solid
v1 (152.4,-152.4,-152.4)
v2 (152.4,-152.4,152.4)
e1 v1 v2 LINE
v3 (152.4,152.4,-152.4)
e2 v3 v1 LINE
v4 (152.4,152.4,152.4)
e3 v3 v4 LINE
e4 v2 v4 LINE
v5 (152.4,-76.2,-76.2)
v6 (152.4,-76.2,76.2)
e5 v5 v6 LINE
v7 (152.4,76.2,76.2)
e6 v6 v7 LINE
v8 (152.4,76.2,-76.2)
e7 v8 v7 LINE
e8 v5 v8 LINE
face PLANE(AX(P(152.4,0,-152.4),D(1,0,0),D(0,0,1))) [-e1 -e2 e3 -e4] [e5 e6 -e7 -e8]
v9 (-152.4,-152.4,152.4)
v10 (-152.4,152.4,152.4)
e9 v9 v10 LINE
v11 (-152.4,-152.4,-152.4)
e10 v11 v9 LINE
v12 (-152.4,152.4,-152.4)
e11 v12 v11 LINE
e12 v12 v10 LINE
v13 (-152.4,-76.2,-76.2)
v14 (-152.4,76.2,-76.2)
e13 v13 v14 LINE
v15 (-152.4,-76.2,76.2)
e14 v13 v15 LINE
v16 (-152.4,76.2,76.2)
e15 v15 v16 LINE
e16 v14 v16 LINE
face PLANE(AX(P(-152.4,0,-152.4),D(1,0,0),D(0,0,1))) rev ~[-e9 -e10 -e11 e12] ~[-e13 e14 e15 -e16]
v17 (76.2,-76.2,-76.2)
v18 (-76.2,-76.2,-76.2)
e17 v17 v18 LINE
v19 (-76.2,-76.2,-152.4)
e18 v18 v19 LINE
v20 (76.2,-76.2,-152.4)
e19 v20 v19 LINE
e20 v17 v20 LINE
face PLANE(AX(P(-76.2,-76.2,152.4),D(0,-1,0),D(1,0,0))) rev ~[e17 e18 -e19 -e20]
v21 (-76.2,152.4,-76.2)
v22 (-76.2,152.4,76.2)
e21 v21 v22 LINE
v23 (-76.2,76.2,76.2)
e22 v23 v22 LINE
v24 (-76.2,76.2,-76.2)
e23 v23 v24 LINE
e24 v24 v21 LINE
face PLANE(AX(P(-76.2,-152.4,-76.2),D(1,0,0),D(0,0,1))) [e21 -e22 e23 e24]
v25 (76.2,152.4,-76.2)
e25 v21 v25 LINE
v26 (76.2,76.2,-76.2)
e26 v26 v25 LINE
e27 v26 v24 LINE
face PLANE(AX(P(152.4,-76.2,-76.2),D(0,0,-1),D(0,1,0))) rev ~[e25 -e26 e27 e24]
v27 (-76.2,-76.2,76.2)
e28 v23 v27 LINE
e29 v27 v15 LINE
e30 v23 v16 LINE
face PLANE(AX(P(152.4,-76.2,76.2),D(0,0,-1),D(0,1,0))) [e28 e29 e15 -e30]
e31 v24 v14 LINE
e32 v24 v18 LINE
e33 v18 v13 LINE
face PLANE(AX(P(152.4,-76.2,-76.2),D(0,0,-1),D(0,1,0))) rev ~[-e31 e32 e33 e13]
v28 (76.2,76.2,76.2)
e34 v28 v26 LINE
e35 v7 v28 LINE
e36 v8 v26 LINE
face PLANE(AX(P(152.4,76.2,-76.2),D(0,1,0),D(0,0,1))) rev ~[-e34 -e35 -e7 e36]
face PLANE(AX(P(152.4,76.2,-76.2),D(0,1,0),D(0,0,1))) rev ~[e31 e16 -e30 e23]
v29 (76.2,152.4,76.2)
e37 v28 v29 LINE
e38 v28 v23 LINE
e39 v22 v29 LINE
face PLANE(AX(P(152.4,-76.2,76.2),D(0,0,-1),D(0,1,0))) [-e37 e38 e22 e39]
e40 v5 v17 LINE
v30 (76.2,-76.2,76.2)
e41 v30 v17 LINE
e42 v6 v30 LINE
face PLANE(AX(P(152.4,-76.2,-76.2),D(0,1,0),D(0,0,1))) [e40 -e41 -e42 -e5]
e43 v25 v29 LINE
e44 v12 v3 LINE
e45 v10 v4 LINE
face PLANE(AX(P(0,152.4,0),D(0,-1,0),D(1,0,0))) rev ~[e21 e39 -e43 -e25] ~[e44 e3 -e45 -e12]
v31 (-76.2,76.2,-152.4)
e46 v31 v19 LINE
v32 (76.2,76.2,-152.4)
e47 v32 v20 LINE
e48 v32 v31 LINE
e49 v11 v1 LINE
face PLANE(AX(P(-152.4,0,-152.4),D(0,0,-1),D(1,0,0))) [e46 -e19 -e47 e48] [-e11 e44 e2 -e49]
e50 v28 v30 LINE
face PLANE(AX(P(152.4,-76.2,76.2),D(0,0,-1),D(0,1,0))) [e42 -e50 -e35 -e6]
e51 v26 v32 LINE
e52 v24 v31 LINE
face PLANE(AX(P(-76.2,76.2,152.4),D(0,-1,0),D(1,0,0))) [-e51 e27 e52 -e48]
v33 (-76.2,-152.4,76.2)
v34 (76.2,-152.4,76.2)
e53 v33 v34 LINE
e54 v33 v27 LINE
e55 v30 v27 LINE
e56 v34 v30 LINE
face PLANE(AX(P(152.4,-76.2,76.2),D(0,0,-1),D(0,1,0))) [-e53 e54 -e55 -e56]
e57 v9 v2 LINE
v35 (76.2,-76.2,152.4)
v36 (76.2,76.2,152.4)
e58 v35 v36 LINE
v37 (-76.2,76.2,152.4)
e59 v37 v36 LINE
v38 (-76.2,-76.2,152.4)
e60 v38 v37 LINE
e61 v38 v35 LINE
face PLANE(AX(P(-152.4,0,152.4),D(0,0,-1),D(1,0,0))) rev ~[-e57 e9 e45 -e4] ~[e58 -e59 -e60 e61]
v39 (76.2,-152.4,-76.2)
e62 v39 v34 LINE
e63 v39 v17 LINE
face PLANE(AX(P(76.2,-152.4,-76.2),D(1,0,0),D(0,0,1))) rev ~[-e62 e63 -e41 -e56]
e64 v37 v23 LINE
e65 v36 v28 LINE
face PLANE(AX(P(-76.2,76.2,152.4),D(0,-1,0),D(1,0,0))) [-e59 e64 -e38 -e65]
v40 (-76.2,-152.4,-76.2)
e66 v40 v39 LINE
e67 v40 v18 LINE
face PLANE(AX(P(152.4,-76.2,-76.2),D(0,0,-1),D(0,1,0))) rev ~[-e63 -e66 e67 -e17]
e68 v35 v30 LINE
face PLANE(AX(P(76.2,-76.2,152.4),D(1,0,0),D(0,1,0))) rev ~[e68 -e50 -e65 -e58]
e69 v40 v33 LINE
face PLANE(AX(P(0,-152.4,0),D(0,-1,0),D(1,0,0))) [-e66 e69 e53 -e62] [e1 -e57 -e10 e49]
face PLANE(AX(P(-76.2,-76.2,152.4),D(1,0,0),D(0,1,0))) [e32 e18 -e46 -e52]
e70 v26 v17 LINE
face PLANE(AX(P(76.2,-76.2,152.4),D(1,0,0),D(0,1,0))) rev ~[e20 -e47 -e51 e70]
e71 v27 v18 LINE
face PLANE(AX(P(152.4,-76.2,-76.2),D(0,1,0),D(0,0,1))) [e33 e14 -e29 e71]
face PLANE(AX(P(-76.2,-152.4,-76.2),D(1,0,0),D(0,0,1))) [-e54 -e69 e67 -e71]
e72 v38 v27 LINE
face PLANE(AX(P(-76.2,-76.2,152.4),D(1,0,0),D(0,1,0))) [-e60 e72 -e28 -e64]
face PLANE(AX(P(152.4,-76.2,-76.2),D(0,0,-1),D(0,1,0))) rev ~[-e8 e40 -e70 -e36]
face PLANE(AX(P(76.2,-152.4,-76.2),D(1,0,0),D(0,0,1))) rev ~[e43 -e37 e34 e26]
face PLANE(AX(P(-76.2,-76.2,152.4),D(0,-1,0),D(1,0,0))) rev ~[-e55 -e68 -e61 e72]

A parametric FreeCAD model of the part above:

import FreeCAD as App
import Part
import Sketcher
Q = App.Units.Quantity

doc = App.newDocument("Part")
body = doc.addObject("PartDesign::Body", "Body")

sketch1 = body.newObject("Sketcher::SketchObject", "Sketch")
sketch1.AttachmentSupport = (doc.getObject("XZ_Plane"), [""])
sketch1.MapMode = "FlatFace"
sketch1.addGeometry([
    Part.LineSegment(App.Vector(-152, 152, 0), App.Vector(-152, -152, 0)),
    Part.LineSegment(App.Vector(-152, -152, 0), App.Vector(152, -152, 0)),
    Part.LineSegment(App.Vector(152, -152, 0), App.Vector(152, 152, 0)),
    Part.LineSegment(App.Vector(152, 152, 0), App.Vector(-152, 152, 0)),
], False)
sketch1.addConstraint([
    Sketcher.Constraint("Coincident", 0, 2, 1, 1),
    Sketcher.Constraint("Coincident", 1, 2, 2, 1),
    Sketcher.Constraint("Coincident", 2, 2, 3, 1),
    Sketcher.Constraint("Coincident", 3, 2, 0, 1),
    Sketcher.Constraint("Vertical", 0),
    Sketcher.Constraint("Horizontal", 1),
    Sketcher.Constraint("Vertical", 2),
    Sketcher.Constraint("Horizontal", 3),
    Sketcher.Constraint("Symmetric", 0, 2, 2, 2, -1, 1),
    Sketcher.Constraint("Equal", 3, 0),
    Sketcher.Constraint("DistanceX", 1, 1, 1, 2, Q("12 in")),
])
pad1 = body.newObject("PartDesign::Pad", "Pad")
pad1.Profile = sketch1
pad1.Length = Q("12 in")
pad1.Midplane = True

sketch2 = body.newObject("Sketcher::SketchObject", "Sketch001")
sketch2.AttachmentSupport = (doc.getObject("YZ_Plane"), [""])
sketch2.MapMode = "FlatFace"
sketch2.AttachmentOffset = App.Placement(App.Vector(0, 0, 6 * 25.4), App.Rotation())
sketch2.addGeometry([
    Part.LineSegment(App.Vector(-76, 76, 0), App.Vector(-76, -76, 0)),
    Part.LineSegment(App.Vector(-76, -76, 0), App.Vector(76, -76, 0)),
    Part.LineSegment(App.Vector(76, -76, 0), App.Vector(76, 76, 0)),
    Part.LineSegment(App.Vector(76, 76, 0), App.Vector(-76, 76, 0)),
], False)
sketch2.addConstraint([
    Sketcher.Constraint("Coincident", 0, 2, 1, 1),
    Sketcher.Constraint("Coincident", 1, 2, 2, 1),
    Sketcher.Constraint("Coincident", 2, 2, 3, 1),
    Sketcher.Constraint("Coincident", 3, 2, 0, 1),
    Sketcher.Constraint("Vertical", 0),
    Sketcher.Constraint("Horizontal", 1),
    Sketcher.Constraint("Vertical", 2),
    Sketcher.Constraint("Horizontal", 3),
    Sketcher.Constraint("Symmetric", 0, 2, 2, 2, -1, 1),
    Sketcher.Constraint("Equal", 3, 0),
    Sketcher.Constraint("DistanceX", 1, 1, 1, 2, Q("6 in")),
])
pocket1 = body.newObject("PartDesign::Pocket", "Pocket")
pocket1.Profile = sketch2
pocket1.Type = "ThroughAll"

sketch3 = body.newObject("Sketcher::SketchObject", "Sketch002")
sketch3.AttachmentSupport = (doc.getObject("XZ_Plane"), [""])
sketch3.MapMode = "FlatFace"
sketch3.AttachmentOffset = App.Placement(App.Vector(0, 0, 6 * 25.4), App.Rotation())
sketch3.addGeometry([
    Part.LineSegment(App.Vector(-76, 76, 0), App.Vector(-76, -76, 0)),
    Part.LineSegment(App.Vector(-76, -76, 0), App.Vector(76, -76, 0)),
    Part.LineSegment(App.Vector(76, -76, 0), App.Vector(76, 76, 0)),
    Part.LineSegment(App.Vector(76, 76, 0), App.Vector(-76, 76, 0)),
], False)
sketch3.addConstraint([
    Sketcher.Constraint("Coincident", 0, 2, 1, 1),
    Sketcher.Constraint("Coincident", 1, 2, 2, 1),
    Sketcher.Constraint("Coincident", 2, 2, 3, 1),
    Sketcher.Constraint("Coincident", 3, 2, 0, 1),
    Sketcher.Constraint("Vertical", 0),
    Sketcher.Constraint("Horizontal", 1),
    Sketcher.Constraint("Vertical", 2),
    Sketcher.Constraint("Horizontal", 3),
    Sketcher.Constraint("Symmetric", 0, 2, 2, 2, -1, 1),
    Sketcher.Constraint("Equal", 3, 0),
    Sketcher.Constraint("DistanceX", 1, 1, 1, 2, Q("6 in")),
])
pocket2 = body.newObject("PartDesign::Pocket", "Pocket001")
pocket2.Profile = sketch3
pocket2.Type = "ThroughAll"

sketch4 = body.newObject("Sketcher::SketchObject", "Sketch003")
sketch4.AttachmentSupport = (doc.getObject("XY_Plane"), [""])
sketch4.MapMode = "FlatFace"
sketch4.AttachmentOffset = App.Placement(App.Vector(0, 0, 6 * 25.4), App.Rotation())
sketch4.addGeometry([
    Part.LineSegment(App.Vector(-76, 76, 0), App.Vector(-76, -76, 0)),
    Part.LineSegment(App.Vector(-76, -76, 0), App.Vector(76, -76, 0)),
    Part.LineSegment(App.Vector(76, -76, 0), App.Vector(76, 76, 0)),
    Part.LineSegment(App.Vector(76, 76, 0), App.Vector(-76, 76, 0)),
], False)
sketch4.addConstraint([
    Sketcher.Constraint("Coincident", 0, 2, 1, 1),
    Sketcher.Constraint("Coincident", 1, 2, 2, 1),
    Sketcher.Constraint("Coincident", 2, 2, 3, 1),
    Sketcher.Constraint("Coincident", 3, 2, 0, 1),
    Sketcher.Constraint("Vertical", 0),
    Sketcher.Constraint("Horizontal", 1),
    Sketcher.Constraint("Vertical", 2),
    Sketcher.Constraint("Horizontal", 3),
    Sketcher.Constraint("Symmetric", 0, 2, 2, 2, -1, 1),
    Sketcher.Constraint("Equal", 3, 0),
    Sketcher.Constraint("DistanceX", 1, 1, 1, 2, Q("6 in")),
])
pocket3 = body.newObject("PartDesign::Pocket", "Pocket002")
pocket3.Profile = sketch4
pocket3.Type = "ThroughAll"

doc.recompute()
